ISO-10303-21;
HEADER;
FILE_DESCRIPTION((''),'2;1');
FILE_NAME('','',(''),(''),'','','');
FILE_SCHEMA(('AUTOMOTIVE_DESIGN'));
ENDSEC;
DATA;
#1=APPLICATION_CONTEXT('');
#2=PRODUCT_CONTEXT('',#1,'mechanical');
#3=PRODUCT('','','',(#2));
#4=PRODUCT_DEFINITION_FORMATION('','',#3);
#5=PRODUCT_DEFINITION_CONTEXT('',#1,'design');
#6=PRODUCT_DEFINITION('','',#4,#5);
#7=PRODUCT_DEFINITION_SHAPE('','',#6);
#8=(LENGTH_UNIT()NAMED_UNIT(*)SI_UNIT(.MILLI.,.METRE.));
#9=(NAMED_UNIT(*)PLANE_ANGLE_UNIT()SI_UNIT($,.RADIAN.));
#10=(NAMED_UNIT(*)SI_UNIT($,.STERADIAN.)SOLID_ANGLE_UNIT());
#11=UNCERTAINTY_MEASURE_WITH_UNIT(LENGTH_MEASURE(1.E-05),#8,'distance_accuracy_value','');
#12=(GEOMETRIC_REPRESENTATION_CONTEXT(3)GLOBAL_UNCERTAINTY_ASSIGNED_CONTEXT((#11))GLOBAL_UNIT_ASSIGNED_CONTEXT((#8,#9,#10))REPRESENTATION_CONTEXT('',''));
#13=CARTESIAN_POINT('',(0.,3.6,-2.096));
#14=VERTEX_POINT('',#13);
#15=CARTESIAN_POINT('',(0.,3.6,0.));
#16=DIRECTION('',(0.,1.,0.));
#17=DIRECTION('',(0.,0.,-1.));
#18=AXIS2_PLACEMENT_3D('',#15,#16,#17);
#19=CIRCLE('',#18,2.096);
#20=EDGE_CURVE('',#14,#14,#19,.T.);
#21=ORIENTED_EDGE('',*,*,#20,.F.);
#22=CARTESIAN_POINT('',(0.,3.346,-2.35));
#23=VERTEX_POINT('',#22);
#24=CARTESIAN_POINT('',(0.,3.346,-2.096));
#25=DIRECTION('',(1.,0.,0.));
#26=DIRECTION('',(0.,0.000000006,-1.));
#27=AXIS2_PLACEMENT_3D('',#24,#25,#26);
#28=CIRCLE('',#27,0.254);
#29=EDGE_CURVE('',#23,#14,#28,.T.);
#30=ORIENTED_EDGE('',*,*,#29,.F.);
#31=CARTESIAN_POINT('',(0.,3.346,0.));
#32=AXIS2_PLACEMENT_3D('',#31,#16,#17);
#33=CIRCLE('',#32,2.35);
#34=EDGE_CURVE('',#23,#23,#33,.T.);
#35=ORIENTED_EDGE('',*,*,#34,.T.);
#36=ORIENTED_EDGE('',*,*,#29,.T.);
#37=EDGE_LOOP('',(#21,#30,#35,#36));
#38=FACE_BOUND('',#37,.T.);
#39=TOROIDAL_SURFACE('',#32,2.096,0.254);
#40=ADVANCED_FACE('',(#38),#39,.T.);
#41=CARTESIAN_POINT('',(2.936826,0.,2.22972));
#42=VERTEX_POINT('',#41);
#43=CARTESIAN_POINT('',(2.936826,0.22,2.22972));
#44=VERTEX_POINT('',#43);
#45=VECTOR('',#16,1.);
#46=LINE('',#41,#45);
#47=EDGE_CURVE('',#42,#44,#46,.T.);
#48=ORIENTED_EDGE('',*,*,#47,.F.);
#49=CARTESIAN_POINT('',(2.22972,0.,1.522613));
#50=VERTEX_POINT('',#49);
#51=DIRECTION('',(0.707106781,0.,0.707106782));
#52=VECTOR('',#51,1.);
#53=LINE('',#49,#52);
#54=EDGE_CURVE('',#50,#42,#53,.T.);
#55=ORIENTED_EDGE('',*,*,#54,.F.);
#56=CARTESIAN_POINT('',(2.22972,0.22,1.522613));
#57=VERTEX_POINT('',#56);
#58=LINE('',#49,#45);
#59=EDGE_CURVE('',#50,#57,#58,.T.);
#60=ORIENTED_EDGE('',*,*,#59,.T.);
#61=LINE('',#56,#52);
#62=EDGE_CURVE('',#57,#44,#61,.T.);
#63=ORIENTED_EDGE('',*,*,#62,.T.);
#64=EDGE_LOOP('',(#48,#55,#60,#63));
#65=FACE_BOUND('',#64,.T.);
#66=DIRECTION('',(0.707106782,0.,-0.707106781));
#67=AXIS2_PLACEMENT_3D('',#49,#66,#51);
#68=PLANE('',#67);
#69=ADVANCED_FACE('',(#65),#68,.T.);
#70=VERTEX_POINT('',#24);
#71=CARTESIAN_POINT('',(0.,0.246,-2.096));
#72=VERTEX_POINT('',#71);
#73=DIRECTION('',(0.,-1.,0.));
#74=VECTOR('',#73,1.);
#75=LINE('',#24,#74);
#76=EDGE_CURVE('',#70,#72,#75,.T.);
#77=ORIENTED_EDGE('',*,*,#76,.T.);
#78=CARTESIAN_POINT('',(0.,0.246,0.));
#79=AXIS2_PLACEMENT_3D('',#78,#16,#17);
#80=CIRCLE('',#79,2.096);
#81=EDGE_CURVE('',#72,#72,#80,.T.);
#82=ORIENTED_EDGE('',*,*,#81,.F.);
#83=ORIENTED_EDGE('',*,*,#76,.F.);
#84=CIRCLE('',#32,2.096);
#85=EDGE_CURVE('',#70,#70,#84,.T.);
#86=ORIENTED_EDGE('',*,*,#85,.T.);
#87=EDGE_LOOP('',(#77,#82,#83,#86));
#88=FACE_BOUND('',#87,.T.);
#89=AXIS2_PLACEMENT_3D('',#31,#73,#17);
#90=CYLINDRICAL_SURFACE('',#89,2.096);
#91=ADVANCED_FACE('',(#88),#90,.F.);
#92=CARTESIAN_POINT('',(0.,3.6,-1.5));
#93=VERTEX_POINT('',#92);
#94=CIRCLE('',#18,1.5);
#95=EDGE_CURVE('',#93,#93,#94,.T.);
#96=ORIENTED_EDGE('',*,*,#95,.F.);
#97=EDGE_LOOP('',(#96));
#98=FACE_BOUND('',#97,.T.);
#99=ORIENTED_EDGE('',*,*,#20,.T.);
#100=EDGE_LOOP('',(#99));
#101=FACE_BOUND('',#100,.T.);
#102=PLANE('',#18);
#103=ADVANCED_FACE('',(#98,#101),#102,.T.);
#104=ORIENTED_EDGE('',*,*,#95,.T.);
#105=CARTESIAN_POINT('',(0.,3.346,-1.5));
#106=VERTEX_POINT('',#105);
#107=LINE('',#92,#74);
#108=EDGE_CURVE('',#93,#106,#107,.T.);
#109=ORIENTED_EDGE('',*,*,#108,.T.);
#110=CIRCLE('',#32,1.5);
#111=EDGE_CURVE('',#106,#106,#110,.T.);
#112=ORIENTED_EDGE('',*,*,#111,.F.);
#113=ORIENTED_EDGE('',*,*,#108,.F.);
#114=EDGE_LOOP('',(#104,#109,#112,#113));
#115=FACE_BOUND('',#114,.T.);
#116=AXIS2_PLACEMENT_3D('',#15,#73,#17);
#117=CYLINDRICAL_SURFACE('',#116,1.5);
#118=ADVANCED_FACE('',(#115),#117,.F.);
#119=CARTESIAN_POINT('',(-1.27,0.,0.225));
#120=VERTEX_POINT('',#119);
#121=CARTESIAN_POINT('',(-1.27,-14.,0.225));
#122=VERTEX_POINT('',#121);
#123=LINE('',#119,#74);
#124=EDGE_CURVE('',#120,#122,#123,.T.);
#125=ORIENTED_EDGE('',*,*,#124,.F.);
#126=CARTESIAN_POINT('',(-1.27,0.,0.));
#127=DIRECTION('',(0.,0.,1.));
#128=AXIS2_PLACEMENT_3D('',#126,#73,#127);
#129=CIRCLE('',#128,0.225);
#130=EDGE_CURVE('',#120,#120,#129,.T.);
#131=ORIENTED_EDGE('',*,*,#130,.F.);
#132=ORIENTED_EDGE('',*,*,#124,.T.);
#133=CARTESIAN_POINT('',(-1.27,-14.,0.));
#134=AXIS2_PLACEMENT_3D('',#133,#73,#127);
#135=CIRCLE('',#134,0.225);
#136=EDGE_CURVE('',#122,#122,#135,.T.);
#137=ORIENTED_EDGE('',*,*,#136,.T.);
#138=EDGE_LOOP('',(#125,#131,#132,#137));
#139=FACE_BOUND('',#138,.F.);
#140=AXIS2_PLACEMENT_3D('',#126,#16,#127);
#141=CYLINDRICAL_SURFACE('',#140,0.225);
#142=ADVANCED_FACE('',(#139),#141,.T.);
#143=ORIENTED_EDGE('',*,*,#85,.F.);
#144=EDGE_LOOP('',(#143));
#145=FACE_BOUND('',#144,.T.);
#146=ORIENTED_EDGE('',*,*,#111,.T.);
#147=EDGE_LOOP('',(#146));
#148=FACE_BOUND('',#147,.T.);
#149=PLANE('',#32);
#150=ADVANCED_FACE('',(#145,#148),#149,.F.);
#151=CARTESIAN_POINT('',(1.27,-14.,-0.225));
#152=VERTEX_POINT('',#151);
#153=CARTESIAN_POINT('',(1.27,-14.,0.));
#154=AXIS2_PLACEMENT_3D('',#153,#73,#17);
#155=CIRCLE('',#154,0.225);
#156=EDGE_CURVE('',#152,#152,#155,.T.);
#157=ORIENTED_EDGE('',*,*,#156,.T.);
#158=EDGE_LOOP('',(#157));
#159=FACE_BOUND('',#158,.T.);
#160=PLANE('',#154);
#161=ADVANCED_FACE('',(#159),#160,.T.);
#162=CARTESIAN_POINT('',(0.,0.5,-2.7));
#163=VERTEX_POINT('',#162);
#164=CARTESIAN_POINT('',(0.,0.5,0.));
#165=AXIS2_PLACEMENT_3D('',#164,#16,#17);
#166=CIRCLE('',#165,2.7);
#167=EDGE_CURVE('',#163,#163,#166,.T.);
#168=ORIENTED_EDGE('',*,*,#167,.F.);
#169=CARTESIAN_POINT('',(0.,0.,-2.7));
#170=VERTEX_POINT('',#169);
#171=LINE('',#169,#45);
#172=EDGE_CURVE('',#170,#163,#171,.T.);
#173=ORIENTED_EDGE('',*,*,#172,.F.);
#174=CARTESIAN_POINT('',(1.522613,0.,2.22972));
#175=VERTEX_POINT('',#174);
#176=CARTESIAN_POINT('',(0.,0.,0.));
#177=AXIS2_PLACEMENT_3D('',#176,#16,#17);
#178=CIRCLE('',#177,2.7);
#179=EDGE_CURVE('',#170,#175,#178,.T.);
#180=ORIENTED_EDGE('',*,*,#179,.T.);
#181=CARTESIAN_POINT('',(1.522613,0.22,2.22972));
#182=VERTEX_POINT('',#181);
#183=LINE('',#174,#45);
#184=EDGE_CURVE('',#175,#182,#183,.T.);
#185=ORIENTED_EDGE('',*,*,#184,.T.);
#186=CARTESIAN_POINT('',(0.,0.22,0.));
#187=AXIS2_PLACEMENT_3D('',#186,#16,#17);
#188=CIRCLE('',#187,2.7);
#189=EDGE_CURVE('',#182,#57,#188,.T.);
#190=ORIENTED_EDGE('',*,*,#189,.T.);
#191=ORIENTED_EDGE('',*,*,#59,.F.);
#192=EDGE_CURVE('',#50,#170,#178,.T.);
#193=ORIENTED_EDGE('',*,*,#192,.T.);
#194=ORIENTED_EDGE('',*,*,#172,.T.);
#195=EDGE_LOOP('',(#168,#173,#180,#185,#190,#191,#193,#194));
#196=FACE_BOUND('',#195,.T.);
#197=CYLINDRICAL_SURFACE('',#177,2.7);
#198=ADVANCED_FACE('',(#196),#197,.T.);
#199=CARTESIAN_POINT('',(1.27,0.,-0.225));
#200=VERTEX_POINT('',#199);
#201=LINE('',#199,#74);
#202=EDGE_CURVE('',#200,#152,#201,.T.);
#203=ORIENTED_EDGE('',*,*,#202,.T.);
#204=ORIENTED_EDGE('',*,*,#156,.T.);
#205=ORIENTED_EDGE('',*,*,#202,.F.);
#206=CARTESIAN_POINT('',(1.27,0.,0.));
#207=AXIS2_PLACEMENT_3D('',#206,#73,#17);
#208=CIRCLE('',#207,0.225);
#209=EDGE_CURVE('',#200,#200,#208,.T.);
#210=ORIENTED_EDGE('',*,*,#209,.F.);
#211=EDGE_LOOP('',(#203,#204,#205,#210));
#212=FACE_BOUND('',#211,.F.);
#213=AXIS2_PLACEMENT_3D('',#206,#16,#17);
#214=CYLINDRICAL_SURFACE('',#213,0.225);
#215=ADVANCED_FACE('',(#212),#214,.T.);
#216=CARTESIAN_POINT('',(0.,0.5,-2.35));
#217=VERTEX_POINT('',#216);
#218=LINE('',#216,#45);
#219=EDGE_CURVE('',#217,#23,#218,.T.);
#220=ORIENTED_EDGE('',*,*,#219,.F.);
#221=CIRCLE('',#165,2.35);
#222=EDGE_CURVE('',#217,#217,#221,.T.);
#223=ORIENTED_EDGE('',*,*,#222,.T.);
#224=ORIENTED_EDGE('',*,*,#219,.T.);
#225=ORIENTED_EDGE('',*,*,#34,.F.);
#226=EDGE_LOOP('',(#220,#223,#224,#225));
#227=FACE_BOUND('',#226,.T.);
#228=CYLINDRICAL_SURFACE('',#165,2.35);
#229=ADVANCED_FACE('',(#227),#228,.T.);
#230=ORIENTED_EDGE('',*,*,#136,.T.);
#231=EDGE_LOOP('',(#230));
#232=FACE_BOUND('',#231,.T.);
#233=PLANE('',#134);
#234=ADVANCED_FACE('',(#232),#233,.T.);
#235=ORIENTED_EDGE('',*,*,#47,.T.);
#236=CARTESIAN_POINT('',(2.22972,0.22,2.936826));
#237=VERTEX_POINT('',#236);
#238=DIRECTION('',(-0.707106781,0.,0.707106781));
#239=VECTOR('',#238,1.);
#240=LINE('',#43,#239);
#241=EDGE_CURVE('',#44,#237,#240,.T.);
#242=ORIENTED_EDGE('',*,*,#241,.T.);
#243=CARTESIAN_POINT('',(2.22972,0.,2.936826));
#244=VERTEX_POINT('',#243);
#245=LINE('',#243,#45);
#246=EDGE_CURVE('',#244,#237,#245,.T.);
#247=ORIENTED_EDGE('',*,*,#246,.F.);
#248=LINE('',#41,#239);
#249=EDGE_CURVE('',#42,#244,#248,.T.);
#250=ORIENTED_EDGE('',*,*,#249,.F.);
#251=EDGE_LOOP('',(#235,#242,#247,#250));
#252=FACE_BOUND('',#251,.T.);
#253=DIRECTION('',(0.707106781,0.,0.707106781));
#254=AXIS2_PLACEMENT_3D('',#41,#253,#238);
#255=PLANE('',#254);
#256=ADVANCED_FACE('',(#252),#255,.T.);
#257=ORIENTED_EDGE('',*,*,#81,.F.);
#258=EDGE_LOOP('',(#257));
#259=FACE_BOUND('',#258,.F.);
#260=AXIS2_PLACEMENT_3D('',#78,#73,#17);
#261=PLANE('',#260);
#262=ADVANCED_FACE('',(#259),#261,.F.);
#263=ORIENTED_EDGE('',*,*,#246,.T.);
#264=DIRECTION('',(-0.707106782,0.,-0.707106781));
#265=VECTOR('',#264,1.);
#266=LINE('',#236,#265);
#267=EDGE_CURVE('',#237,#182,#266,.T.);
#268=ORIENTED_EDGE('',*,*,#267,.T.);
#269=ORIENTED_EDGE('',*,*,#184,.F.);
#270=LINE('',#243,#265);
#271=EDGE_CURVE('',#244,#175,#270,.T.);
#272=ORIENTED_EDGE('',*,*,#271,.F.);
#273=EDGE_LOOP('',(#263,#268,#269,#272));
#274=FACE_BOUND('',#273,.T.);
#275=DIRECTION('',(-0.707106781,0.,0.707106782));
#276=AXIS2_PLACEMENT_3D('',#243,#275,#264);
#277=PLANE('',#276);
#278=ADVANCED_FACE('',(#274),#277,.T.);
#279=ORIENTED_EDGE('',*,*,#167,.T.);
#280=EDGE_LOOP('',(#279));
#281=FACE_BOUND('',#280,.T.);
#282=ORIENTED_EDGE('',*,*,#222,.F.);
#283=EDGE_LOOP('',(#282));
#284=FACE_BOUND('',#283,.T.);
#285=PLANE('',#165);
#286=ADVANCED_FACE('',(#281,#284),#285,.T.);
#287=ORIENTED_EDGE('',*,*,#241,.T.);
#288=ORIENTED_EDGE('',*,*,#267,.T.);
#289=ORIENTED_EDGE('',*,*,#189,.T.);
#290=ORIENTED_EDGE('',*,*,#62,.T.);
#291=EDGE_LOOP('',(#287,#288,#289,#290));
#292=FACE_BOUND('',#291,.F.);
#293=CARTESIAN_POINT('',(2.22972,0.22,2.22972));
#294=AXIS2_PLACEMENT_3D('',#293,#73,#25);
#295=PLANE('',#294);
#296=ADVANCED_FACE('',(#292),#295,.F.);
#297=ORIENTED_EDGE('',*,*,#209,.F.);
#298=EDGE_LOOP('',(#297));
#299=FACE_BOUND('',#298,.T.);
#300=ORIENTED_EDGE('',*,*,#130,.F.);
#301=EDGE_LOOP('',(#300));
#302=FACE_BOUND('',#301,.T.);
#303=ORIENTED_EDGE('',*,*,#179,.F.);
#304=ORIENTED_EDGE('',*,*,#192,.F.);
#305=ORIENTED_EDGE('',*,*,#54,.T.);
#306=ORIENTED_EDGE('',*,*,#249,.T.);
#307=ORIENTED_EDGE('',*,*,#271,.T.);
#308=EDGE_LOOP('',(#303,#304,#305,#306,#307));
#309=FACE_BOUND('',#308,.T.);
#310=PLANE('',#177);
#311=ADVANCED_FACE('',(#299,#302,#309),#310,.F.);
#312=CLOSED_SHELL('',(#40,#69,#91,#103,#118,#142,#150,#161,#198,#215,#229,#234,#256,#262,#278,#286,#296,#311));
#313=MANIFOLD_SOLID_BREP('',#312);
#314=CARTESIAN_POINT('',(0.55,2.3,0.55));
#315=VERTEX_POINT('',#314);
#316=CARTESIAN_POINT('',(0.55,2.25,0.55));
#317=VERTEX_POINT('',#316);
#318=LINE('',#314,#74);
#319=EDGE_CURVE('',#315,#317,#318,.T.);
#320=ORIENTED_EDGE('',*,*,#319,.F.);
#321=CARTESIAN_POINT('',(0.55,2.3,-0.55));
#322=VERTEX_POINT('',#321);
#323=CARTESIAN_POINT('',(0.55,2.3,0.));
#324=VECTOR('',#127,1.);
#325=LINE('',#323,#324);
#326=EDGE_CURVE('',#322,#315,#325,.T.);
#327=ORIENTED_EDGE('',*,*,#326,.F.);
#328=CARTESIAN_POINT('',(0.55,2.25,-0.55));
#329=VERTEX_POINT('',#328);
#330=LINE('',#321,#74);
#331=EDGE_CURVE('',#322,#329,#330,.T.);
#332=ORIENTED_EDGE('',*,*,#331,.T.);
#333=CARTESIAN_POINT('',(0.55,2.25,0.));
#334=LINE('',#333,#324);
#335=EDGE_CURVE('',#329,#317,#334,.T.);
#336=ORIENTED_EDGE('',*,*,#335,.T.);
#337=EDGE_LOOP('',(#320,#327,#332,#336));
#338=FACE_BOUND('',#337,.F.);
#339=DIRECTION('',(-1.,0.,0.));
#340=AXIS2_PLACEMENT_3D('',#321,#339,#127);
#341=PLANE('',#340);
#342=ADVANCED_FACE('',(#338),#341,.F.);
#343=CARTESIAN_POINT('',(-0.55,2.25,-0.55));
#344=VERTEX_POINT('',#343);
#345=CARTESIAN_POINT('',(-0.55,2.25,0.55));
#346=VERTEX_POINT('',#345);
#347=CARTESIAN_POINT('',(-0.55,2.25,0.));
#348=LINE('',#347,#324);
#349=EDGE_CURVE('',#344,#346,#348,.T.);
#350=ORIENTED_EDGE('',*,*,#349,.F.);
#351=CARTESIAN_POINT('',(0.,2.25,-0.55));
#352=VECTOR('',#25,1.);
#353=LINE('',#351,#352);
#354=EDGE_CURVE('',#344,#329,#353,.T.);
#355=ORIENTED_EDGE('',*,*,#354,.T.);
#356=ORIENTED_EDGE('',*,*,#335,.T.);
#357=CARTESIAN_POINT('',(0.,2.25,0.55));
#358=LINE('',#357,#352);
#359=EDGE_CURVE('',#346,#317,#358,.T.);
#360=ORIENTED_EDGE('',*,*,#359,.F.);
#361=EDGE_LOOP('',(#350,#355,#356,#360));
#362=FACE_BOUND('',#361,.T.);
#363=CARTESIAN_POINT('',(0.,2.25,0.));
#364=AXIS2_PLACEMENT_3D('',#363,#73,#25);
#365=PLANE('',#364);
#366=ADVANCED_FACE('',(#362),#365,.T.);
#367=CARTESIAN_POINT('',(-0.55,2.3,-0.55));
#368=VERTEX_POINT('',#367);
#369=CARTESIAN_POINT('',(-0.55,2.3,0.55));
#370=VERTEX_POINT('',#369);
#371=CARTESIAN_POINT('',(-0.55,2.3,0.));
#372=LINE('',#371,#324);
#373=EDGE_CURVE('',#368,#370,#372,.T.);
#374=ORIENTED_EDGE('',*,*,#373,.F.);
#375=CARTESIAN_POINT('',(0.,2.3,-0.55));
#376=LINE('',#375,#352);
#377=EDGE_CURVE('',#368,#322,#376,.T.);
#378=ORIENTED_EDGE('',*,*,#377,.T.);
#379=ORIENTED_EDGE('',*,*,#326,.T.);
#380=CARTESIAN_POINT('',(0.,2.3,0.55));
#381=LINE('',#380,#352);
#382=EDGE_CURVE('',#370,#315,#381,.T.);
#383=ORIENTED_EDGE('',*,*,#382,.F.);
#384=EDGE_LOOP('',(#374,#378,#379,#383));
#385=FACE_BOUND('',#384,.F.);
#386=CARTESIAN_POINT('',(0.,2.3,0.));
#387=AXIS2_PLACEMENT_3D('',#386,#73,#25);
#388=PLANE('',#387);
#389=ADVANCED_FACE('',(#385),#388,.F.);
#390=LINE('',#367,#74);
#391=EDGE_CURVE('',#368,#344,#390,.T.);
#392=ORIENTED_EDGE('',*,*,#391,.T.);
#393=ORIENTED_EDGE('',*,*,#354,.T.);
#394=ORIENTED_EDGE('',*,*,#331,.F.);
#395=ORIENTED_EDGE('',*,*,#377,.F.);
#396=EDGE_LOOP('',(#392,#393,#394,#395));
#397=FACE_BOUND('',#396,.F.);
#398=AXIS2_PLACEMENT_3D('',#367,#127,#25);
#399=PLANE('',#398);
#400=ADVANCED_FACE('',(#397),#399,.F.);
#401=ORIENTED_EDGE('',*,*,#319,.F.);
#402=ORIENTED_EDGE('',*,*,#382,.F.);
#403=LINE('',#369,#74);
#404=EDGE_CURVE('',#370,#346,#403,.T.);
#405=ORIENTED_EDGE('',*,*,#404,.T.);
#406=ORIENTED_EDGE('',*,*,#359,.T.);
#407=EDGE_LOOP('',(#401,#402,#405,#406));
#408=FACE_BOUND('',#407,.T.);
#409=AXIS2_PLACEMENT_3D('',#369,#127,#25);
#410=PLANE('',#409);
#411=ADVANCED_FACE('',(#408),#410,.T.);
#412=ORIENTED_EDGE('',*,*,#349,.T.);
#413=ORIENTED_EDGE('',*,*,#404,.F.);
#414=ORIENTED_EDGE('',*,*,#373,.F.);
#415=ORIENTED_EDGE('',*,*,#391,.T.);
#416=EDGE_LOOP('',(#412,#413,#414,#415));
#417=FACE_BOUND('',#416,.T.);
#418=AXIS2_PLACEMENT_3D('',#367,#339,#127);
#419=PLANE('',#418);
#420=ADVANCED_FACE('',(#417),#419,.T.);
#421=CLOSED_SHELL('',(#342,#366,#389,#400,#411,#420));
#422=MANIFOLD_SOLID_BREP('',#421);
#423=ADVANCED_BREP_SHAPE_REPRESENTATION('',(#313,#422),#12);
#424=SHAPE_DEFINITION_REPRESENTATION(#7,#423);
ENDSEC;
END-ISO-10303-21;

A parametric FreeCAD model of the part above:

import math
import FreeCAD as App
import Part
import Sketcher

V = App.Vector
Q = App.Units.Quantity


def add_polygon(sketch, points):
    """Adds a closed chain of lines whose ends are joined by coincident constraints."""
    first, n = sketch.GeometryCount, len(points)
    for a, b in zip(points, points[1:] + points[:1]):
        sketch.addGeometry(Part.LineSegment(App.Vector(*a, 0), App.Vector(*b, 0)), False)
    for i in range(n):
        sketch.addConstraint(Sketcher.Constraint("Coincident", first + i, 2, first + (i + 1) % n, 1))

doc = App.newDocument("Part")
body = doc.addObject("PartDesign::Body", "Body")

# Sketch on XY plane
sketch1 = body.newObject("Sketcher::SketchObject", "Sketch")
sketch1.AttachmentSupport = (doc.getObject("XY_Plane"), [""])
sketch1.MapMode = "FlatFace"
sketch1.addGeometry([
    Part.LineSegment(V(2.7, 0, 0), V(2.7, 0.5, 0)),  # 0
    Part.LineSegment(V(2.7, 0.5, 0), V(2.35, 0.5, 0)),  # 1
    Part.LineSegment(V(2.35, 0.5, 0), V(2.35, 3.35, 0)),  # 2
    Part.ArcOfCircle(Part.Circle(V(2.1, 3.35, 0), V(0, 0, 1), 0.25), math.radians(0), math.radians(90)),  # 3
    Part.LineSegment(V(2.1, 3.6, 0), V(1.5, 3.6, 0)),  # 4
    Part.LineSegment(V(1.5, 3.6, 0), V(1.5, 3.35, 0)),  # 5
    Part.LineSegment(V(1.5, 3.35, 0), V(2.1, 3.35, 0)),  # 6
    Part.LineSegment(V(2.1, 3.35, 0), V(2.1, 0.25, 0)),  # 7
    Part.LineSegment(V(2.1, 0.25, 0), V(2.45, 0.25, 0)),  # 8
    Part.LineSegment(V(2.45, 0.25, 0), V(2.45, 0, 0)),  # 9
    Part.LineSegment(V(2.45, 0, 0), V(2.7, 0, 0)),  # 10
], False)
sketch1.addConstraint([
    Sketcher.Constraint("Coincident", 0, 2, 1, 1),
    Sketcher.Constraint("Coincident", 1, 2, 2, 1),
    Sketcher.Constraint("Tangent", 2, 2, 3, 1),
    Sketcher.Constraint("Tangent", 3, 2, 4, 1),
    Sketcher.Constraint("Coincident", 4, 2, 5, 1),
    Sketcher.Constraint("Coincident", 5, 2, 6, 1),
    Sketcher.Constraint("Coincident", 6, 2, 7, 1),
    Sketcher.Constraint("Coincident", 7, 2, 8, 1),
    Sketcher.Constraint("Coincident", 8, 2, 9, 1),
    Sketcher.Constraint("Coincident", 9, 2, 10, 1),
    Sketcher.Constraint("Coincident", 10, 2, 0, 1),
    Sketcher.Constraint("Vertical", 0),
    Sketcher.Constraint("Horizontal", 1),
    Sketcher.Constraint("Vertical", 2),
    Sketcher.Constraint("Horizontal", 4),
    Sketcher.Constraint("Vertical", 5),
    Sketcher.Constraint("Horizontal", 6),
    Sketcher.Constraint("Vertical", 7),
    Sketcher.Constraint("Horizontal", 8),
    Sketcher.Constraint("Vertical", 9),
    Sketcher.Constraint("Horizontal", 10),
    Sketcher.Constraint("Coincident", 6, 2, 3, 3),
    Sketcher.Constraint("PointOnObject", 9, 2, -1),
    Sketcher.Constraint("Equal", 1, 8),
    Sketcher.Constraint("DistanceY", 0, 1, 0, 2, Q("0.5 mm")),
    Sketcher.Constraint("DistanceY", 7, 2, 7, 1, Q("3.1 mm")),
    Sketcher.Constraint("Radius", 3, Q("0.254 mm")),
    Sketcher.Constraint("DistanceX", 1, 2, 1, 1, Q("0.35 mm")),
    Sketcher.Constraint("DistanceX", -1, 1, 0, 2, Q("2.7 mm")),
    Sketcher.Constraint("DistanceY", -1, 1, 3, 2, Q("3.6 mm")),
    Sketcher.Constraint("DistanceX", -1, 1, 4, 2, Q("1.5 mm")),
])
revolution = body.newObject("PartDesign::Revolution", "Revolution")
revolution.Profile = sketch1
revolution.ReferenceAxis = (sketch1, ["V_Axis"])
revolution.Angle = 360

# Sketch on XZ plane
sketch2 = body.newObject("Sketcher::SketchObject", "Sketch001")
sketch2.AttachmentSupport = (doc.getObject("XZ_Plane"), [""])
sketch2.MapMode = "FlatFace"
sketch2.addGeometry(Part.Circle(V(0, 0, 0), V(0, 0, 1), 2.7), False)
sketch2.addConstraint([
    Sketcher.Constraint("Coincident", 0, 3, -1, 1),
    Sketcher.Constraint("Diameter", 0, Q("5.4 mm")),
])
pad1 = body.newObject("PartDesign::Pad", "Pad")
pad1.Profile = sketch2
pad1.Length = 0.246
pad1.Reversed = True

# Sketch on XZ plane
sketch3 = body.newObject("Sketcher::SketchObject", "Sketch002")
sketch3.AttachmentSupport = (doc.getObject("XZ_Plane"), [""])
sketch3.MapMode = "FlatFace"
add_polygon(sketch3, [(1.5, 2.2), (2.2, 1.5), (2.9, 2.2), (2.2, 2.9)])  # lines 0-3
sketch3.addConstraint([
    Sketcher.Constraint("Perpendicular", 0, 1),
    Sketcher.Constraint("Perpendicular", 1, 2),
    Sketcher.Constraint("Perpendicular", 2, 3),
    Sketcher.Constraint("Horizontal", 1, 2, 3, 2),
    Sketcher.Constraint("Vertical", 0, 2, 2, 2),
    Sketcher.Constraint("Distance", 0, Q("1 mm")),
    Sketcher.Constraint("DistanceX", -1, 1, 0, 2, Q("2.22972 mm")),
    Sketcher.Constraint("DistanceY", -1, 1, 1, 2, Q("2.22972 mm")),
])
pad2 = body.newObject("PartDesign::Pad", "Pad001")
pad2.Profile = sketch3
pad2.Length = 0.22
pad2.Reversed = True

# Sketch on XZ plane
sketch4 = body.newObject("Sketcher::SketchObject", "Sketch003")
sketch4.AttachmentSupport = (doc.getObject("XZ_Plane"), [""])
sketch4.MapMode = "FlatFace"
sketch4.addGeometry([
    Part.Circle(V(1.27, 0, 0), V(0, 0, 1), 0.23),
    Part.Circle(V(-1.27, 0, 0), V(0, 0, 1), 0.23),
], False)
sketch4.addConstraint([
    Sketcher.Constraint("Equal", 0, 1),
    Sketcher.Constraint("Symmetric", 0, 3, 1, 3, -1, 1),
    Sketcher.Constraint("PointOnObject", 0, 3, -1),
    Sketcher.Constraint("Diameter", 0, Q("0.45 mm")),
    Sketcher.Constraint("DistanceX", -1, 1, 0, 3, Q("1.27 mm")),
])
pad3 = body.newObject("PartDesign::Pad", "Pad002")
pad3.Profile = sketch4
pad3.Length = 14
body2 = doc.addObject("PartDesign::Body", "Body001")

# Sketch on XZ plane
sketch5 = body2.newObject("Sketcher::SketchObject", "Sketch004")
sketch5.AttachmentSupport = (doc.getObject("XZ_Plane001"), [""])
sketch5.MapMode = "FlatFace"
sketch5.AttachmentOffset = App.Placement(V(0, 0, -2.3), App.Rotation())
add_polygon(sketch5, [(-0.6, 0.6), (-0.6, -0.6), (0.6, -0.6), (0.6, 0.6)])  # lines 0-3
sketch5.addConstraint([
    Sketcher.Constraint("Vertical", 0),
    Sketcher.Constraint("Horizontal", 1),
    Sketcher.Constraint("Vertical", 2),
    Sketcher.Constraint("Horizontal", 3),
    Sketcher.Constraint("Symmetric", 0, 2, 2, 2, -1, 1),
    Sketcher.Constraint("Equal", 3, 0),
    Sketcher.Constraint("DistanceX", 1, 1, 1, 2, Q("1.1 mm")),
])
pad4 = body2.newObject("PartDesign::Pad", "Pad003")
pad4.Profile = sketch5
pad4.Length = 0.05

doc.recompute()
